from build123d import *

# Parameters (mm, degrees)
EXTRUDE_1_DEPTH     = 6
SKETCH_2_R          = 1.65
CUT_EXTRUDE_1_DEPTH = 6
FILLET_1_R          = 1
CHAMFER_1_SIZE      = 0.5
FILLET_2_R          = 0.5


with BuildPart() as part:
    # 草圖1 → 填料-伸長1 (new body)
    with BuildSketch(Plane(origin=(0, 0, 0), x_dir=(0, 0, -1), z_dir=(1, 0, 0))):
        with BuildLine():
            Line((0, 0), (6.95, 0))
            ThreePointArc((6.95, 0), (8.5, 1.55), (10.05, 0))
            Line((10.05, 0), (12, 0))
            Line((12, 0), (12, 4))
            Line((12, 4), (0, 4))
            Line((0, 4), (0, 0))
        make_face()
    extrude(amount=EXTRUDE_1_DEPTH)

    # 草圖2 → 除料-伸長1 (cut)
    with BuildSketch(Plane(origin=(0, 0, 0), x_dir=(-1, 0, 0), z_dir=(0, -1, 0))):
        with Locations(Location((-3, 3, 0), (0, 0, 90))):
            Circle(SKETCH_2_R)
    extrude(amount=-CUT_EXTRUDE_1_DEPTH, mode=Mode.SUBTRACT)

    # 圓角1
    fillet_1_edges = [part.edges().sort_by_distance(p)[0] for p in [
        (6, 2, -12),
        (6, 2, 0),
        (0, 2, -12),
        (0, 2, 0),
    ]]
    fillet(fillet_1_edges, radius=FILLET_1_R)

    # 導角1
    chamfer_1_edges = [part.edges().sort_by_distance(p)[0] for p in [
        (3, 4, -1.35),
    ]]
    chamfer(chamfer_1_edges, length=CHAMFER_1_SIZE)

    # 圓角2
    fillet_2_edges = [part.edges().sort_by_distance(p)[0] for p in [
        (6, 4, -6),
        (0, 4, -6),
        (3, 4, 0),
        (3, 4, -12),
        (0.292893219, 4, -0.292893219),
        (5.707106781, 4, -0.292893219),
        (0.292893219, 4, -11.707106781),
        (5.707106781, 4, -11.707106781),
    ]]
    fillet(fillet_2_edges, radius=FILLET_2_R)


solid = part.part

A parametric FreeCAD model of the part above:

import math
import FreeCAD as App
import Part
import Sketcher
from FreeCAD import Vector
Q = App.Units.Quantity


def edges_at(feature, points):
    """Names of the edges that pass closest to the given points."""
    edges = feature.Shape.Edges
    near = lambda p: min(range(len(edges)), key=lambda i: edges[i].distToShape(Part.Vertex(*p))[0])
    return sorted({f"Edge{near(p) + 1}" for p in points})

doc = App.newDocument("Part")
body = doc.addObject("PartDesign::Body", "Body")

# Sketch on YZ plane
sketch1 = doc.addObject("Sketcher::SketchObject", "Sketch")
body.addObject(sketch1)
sketch1.AttachmentSupport = (doc.YZ_Plane, [""])
sketch1.MapMode = "FlatFace"
sketch1.addGeometry(Part.LineSegment(Vector(0, 0, 0), Vector(0, -7, 0)), False)
sketch1.addGeometry(Part.ArcOfCircle(Part.Circle(Vector(0, -8.5, 0), Vector(0, 0, 1), 1.6), math.radians(-90), math.radians(90)), False)
sketch1.addGeometry(Part.LineSegment(Vector(0, -10.1, 0), Vector(0, -12, 0)), False)
sketch1.addGeometry(Part.LineSegment(Vector(0, -12, 0), Vector(4, -12, 0)), False)
sketch1.addGeometry(Part.LineSegment(Vector(4, -12, 0), Vector(4, 0, 0)), False)
sketch1.addGeometry(Part.LineSegment(Vector(4, 0, 0), Vector(0, 0, 0)), False)
sketch1.addConstraint(Sketcher.Constraint("Coincident", 0, 2, 1, 2))
sketch1.addConstraint(Sketcher.Constraint("Coincident", 1, 1, 2, 1))
sketch1.addConstraint(Sketcher.Constraint("Coincident", 2, 2, 3, 1))
sketch1.addConstraint(Sketcher.Constraint("Coincident", 3, 2, 4, 1))
sketch1.addConstraint(Sketcher.Constraint("Coincident", 4, 2, 5, 1))
sketch1.addConstraint(Sketcher.Constraint("Coincident", 5, 2, 0, 1))
sketch1.addConstraint(Sketcher.Constraint("Vertical", 0))
sketch1.addConstraint(Sketcher.Constraint("Vertical", 2))
sketch1.addConstraint(Sketcher.Constraint("Horizontal", 3))
sketch1.addConstraint(Sketcher.Constraint("Vertical", 4))
sketch1.addConstraint(Sketcher.Constraint("Horizontal", 5))
sketch1.addConstraint(Sketcher.Constraint("Coincident", 5, 2, -1, 1))
sketch1.addConstraint(Sketcher.Constraint("PointOnObject", 1, 3, -2))
sketch1.addConstraint(Sketcher.Constraint("PointOnObject", 1, 1, -2))
sketch1.addConstraint(Sketcher.Constraint("DistanceX", 3, 1, 3, 2, Q("4 mm")))
sketch1.addConstraint(Sketcher.Constraint("DistanceY", 4, 1, 4, 2, Q("12 mm")))
sketch1.addConstraint(Sketcher.Constraint("Radius", 1, Q("1.55 mm")))
sketch1.addConstraint(Sketcher.Constraint("DistanceY", 0, 2, 0, 1, Q("6.95 mm")))
pad1 = doc.addObject("PartDesign::Pad", "Pad")
body.addObject(pad1)
pad1.Profile = sketch1
pad1.Length = 6

# Sketch on XZ plane
sketch2 = doc.addObject("Sketcher::SketchObject", "Sketch001")
body.addObject(sketch2)
sketch2.AttachmentSupport = (doc.XZ_Plane, [""])
sketch2.MapMode = "FlatFace"
sketch2.addGeometry(Part.Circle(Vector(3, -3, 0), Vector(0, 0, 1), 1.6), False)
sketch2.addConstraint(Sketcher.Constraint("Diameter", 0, Q("3.3 mm")))
sketch2.addConstraint(Sketcher.Constraint("DistanceX", -1, 1, 0, 3, Q("3 mm")))
sketch2.addConstraint(Sketcher.Constraint("DistanceY", 0, 3, -1, 1, Q("3 mm")))
pocket1 = doc.addObject("PartDesign::Pocket", "Pocket")
body.addObject(pocket1)
pocket1.Profile = sketch2
pocket1.Length = 6
doc.recompute()

fillet = doc.addObject("PartDesign::Fillet", "Fillet")
body.addObject(fillet)
fillet.Base = (pocket1, edges_at(pocket1, [
    (6, 2, -12),
    (6, 2, 0),
    (0, 2, -12),
    (0, 2, 0),
]))
fillet.Radius = 1
doc.recompute()

chamfer = doc.addObject("PartDesign::Chamfer", "Chamfer")
body.addObject(chamfer)
chamfer.Base = (fillet, edges_at(fillet, [(3, 4, -1.35)]))
chamfer.Size = 0.5
doc.recompute()

fillet2 = doc.addObject("PartDesign::Fillet", "Fillet001")
body.addObject(fillet2)
fillet2.Base = (chamfer, edges_at(chamfer, [
    (6, 4, -6),
    (0, 4, -6),
    (3, 4, 0),
    (3, 4, -12),
    (0.293, 4, -0.293),
    (5.707, 4, -0.293),
    (0.293, 4, -11.707),
    (5.707, 4, -11.707),
]))
fillet2.Radius = 0.5

doc.recompute()
